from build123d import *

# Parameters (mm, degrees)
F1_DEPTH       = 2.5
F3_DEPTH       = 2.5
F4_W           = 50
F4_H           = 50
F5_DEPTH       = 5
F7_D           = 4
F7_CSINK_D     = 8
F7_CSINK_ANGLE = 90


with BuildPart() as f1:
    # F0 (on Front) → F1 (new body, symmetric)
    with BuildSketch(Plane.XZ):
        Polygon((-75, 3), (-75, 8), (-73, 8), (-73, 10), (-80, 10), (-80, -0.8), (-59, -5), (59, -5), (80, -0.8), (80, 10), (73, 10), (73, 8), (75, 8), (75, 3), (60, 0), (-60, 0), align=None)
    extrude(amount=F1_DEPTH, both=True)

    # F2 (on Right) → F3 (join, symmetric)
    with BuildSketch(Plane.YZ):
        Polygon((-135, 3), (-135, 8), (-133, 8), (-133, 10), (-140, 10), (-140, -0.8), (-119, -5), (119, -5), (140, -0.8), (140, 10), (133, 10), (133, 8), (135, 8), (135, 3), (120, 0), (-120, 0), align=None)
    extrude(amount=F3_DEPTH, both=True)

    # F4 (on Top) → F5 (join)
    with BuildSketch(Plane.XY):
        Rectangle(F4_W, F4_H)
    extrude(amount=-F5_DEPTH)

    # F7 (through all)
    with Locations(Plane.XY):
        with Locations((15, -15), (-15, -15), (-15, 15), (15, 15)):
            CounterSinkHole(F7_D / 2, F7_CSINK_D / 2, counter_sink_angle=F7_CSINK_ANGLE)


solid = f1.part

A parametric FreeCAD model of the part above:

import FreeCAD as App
import Part
import Sketcher
from FreeCAD import Vector
Q = App.Units.Quantity

doc = App.newDocument("Part")
body = doc.addObject("PartDesign::Body", "Body")

sketch1 = body.newObject("Sketcher::SketchObject", "Sketch")
sketch1.AttachmentSupport = (doc.getObject("XZ_Plane"), [""])
sketch1.MapMode = "FlatFace"
sketch1.addGeometry(Part.LineSegment(Vector(-75, 3, 0), Vector(-75, 8, 0)), False)
sketch1.addGeometry(Part.LineSegment(Vector(-75, 8, 0), Vector(-73, 8, 0)), False)
sketch1.addGeometry(Part.LineSegment(Vector(-73, 8, 0), Vector(-73, 10, 0)), False)
sketch1.addGeometry(Part.LineSegment(Vector(-73, 10, 0), Vector(-80, 10, 0)), False)
sketch1.addGeometry(Part.LineSegment(Vector(-80, 10, 0), Vector(-80, -0.8, 0)), False)
sketch1.addGeometry(Part.LineSegment(Vector(-80, -0.8, 0), Vector(-59, -5, 0)), False)
sketch1.addGeometry(Part.LineSegment(Vector(-59, -5, 0), Vector(59, -5, 0)), False)
sketch1.addGeometry(Part.LineSegment(Vector(59, -5, 0), Vector(80, -0.8, 0)), False)
sketch1.addGeometry(Part.LineSegment(Vector(80, -0.8, 0), Vector(80, 10, 0)), False)
sketch1.addGeometry(Part.LineSegment(Vector(80, 10, 0), Vector(73, 10, 0)), False)
sketch1.addGeometry(Part.LineSegment(Vector(73, 10, 0), Vector(73, 8, 0)), False)
sketch1.addGeometry(Part.LineSegment(Vector(73, 8, 0), Vector(75, 8, 0)), False)
sketch1.addGeometry(Part.LineSegment(Vector(75, 8, 0), Vector(75, 3, 0)), False)
sketch1.addGeometry(Part.LineSegment(Vector(75, 3, 0), Vector(60, 0, 0)), False)
sketch1.addGeometry(Part.LineSegment(Vector(60, 0, 0), Vector(-60, 0, 0)), False)
sketch1.addGeometry(Part.LineSegment(Vector(-60, 0, 0), Vector(-75, 3, 0)), False)
sketch1.addConstraint(Sketcher.Constraint("Coincident", 0, 2, 1, 1))
sketch1.addConstraint(Sketcher.Constraint("Coincident", 1, 2, 2, 1))
sketch1.addConstraint(Sketcher.Constraint("Coincident", 2, 2, 3, 1))
sketch1.addConstraint(Sketcher.Constraint("Coincident", 3, 2, 4, 1))
sketch1.addConstraint(Sketcher.Constraint("Coincident", 4, 2, 5, 1))
sketch1.addConstraint(Sketcher.Constraint("Coincident", 5, 2, 6, 1))
sketch1.addConstraint(Sketcher.Constraint("Coincident", 6, 2, 7, 1))
sketch1.addConstraint(Sketcher.Constraint("Coincident", 7, 2, 8, 1))
sketch1.addConstraint(Sketcher.Constraint("Coincident", 8, 2, 9, 1))
sketch1.addConstraint(Sketcher.Constraint("Coincident", 9, 2, 10, 1))
sketch1.addConstraint(Sketcher.Constraint("Coincident", 10, 2, 11, 1))
sketch1.addConstraint(Sketcher.Constraint("Coincident", 11, 2, 12, 1))
sketch1.addConstraint(Sketcher.Constraint("Coincident", 12, 2, 13, 1))
sketch1.addConstraint(Sketcher.Constraint("Coincident", 13, 2, 14, 1))
sketch1.addConstraint(Sketcher.Constraint("Coincident", 14, 2, 15, 1))
sketch1.addConstraint(Sketcher.Constraint("Coincident", 15, 2, 0, 1))
sketch1.addConstraint(Sketcher.Constraint("Vertical", 0))
sketch1.addConstraint(Sketcher.Constraint("Horizontal", 1))
sketch1.addConstraint(Sketcher.Constraint("Vertical", 2))
sketch1.addConstraint(Sketcher.Constraint("Horizontal", 3))
sketch1.addConstraint(Sketcher.Constraint("Vertical", 4))
sketch1.addConstraint(Sketcher.Constraint("Horizontal", 6))
sketch1.addConstraint(Sketcher.Constraint("Vertical", 8))
sketch1.addConstraint(Sketcher.Constraint("Horizontal", 9))
sketch1.addConstraint(Sketcher.Constraint("Vertical", 10))
sketch1.addConstraint(Sketcher.Constraint("Horizontal", 11))
sketch1.addConstraint(Sketcher.Constraint("Vertical", 12))
sketch1.addConstraint(Sketcher.Constraint("Horizontal", 14))
sketch1.addConstraint(Sketcher.Constraint("Symmetric", 13, 2, 14, 2, -1, 1))
sketch1.addConstraint(Sketcher.Constraint("Symmetric", 4, 2, 7, 2, -2))
sketch1.addConstraint(Sketcher.Constraint("Symmetric", 2, 2, 9, 2, -2))
sketch1.addConstraint(Sketcher.Constraint("Symmetric", 0, 2, 11, 2, -2))
sketch1.addConstraint(Sketcher.Constraint("Parallel", 7, 13))
sketch1.addConstraint(Sketcher.Constraint("Parallel", 5, 15))
sketch1.addConstraint(Sketcher.Constraint("Horizontal", 12, 2, 15, 2))
sketch1.addConstraint(Sketcher.Constraint("Equal", 11, 2))
sketch1.addConstraint(Sketcher.Constraint("DistanceX", 1, 1, 1, 2, Q("2 mm")))
sketch1.addConstraint(Sketcher.Constraint("DistanceX", 3, 2, 3, 1, Q("7 mm")))
sketch1.addConstraint(Sketcher.Constraint("DistanceX", 6, 1, 6, 2, Q("118 mm")))
sketch1.addConstraint(Sketcher.Constraint("DistanceX", 14, 2, 14, 1, Q("120 mm")))
sketch1.addConstraint(Sketcher.Constraint("DistanceY", 0, 1, 0, 2, Q("5 mm")))
sketch1.addConstraint(Sketcher.Constraint("DistanceY", 4, 2, 4, 1, Q("10.8 mm")))
sketch1.addConstraint(Sketcher.Constraint("DistanceX", 0, 2, -1, 1, Q("75 mm")))
sketch1.addConstraint(Sketcher.Constraint("DistanceY", -1, 1, 0, 2, Q("8 mm")))
pad1 = body.newObject("PartDesign::Pad", "Pad")
pad1.Profile = sketch1
pad1.Length = 5
pad1.Midplane = True

sketch2 = body.newObject("Sketcher::SketchObject", "Sketch001")
sketch2.AttachmentSupport = (doc.getObject("YZ_Plane"), [""])
sketch2.MapMode = "FlatFace"
sketch2.addGeometry(Part.LineSegment(Vector(-135, 3, 0), Vector(-135, 8, 0)), False)
sketch2.addGeometry(Part.LineSegment(Vector(-135, 8, 0), Vector(-133, 8, 0)), False)
sketch2.addGeometry(Part.LineSegment(Vector(-133, 8, 0), Vector(-133, 10, 0)), False)
sketch2.addGeometry(Part.LineSegment(Vector(-133, 10, 0), Vector(-140, 10, 0)), False)
sketch2.addGeometry(Part.LineSegment(Vector(-140, 10, 0), Vector(-140, -0.8, 0)), False)
sketch2.addGeometry(Part.LineSegment(Vector(-140, -0.8, 0), Vector(-119, -5, 0)), False)
sketch2.addGeometry(Part.LineSegment(Vector(-119, -5, 0), Vector(119, -5, 0)), False)
sketch2.addGeometry(Part.LineSegment(Vector(119, -5, 0), Vector(140, -0.8, 0)), False)
sketch2.addGeometry(Part.LineSegment(Vector(140, -0.8, 0), Vector(140, 10, 0)), False)
sketch2.addGeometry(Part.LineSegment(Vector(140, 10, 0), Vector(133, 10, 0)), False)
sketch2.addGeometry(Part.LineSegment(Vector(133, 10, 0), Vector(133, 8, 0)), False)
sketch2.addGeometry(Part.LineSegment(Vector(133, 8, 0), Vector(135, 8, 0)), False)
sketch2.addGeometry(Part.LineSegment(Vector(135, 8, 0), Vector(135, 3, 0)), False)
sketch2.addGeometry(Part.LineSegment(Vector(135, 3, 0), Vector(120, 0, 0)), False)
sketch2.addGeometry(Part.LineSegment(Vector(120, 0, 0), Vector(-120, 0, 0)), False)
sketch2.addGeometry(Part.LineSegment(Vector(-120, 0, 0), Vector(-135, 3, 0)), False)
sketch2.addConstraint(Sketcher.Constraint("Coincident", 0, 2, 1, 1))
sketch2.addConstraint(Sketcher.Constraint("Coincident", 1, 2, 2, 1))
sketch2.addConstraint(Sketcher.Constraint("Coincident", 2, 2, 3, 1))
sketch2.addConstraint(Sketcher.Constraint("Coincident", 3, 2, 4, 1))
sketch2.addConstraint(Sketcher.Constraint("Coincident", 4, 2, 5, 1))
sketch2.addConstraint(Sketcher.Constraint("Coincident", 5, 2, 6, 1))
sketch2.addConstraint(Sketcher.Constraint("Coincident", 6, 2, 7, 1))
sketch2.addConstraint(Sketcher.Constraint("Coincident", 7, 2, 8, 1))
sketch2.addConstraint(Sketcher.Constraint("Coincident", 8, 2, 9, 1))
sketch2.addConstraint(Sketcher.Constraint("Coincident", 9, 2, 10, 1))
sketch2.addConstraint(Sketcher.Constraint("Coincident", 10, 2, 11, 1))
sketch2.addConstraint(Sketcher.Constraint("Coincident", 11, 2, 12, 1))
sketch2.addConstraint(Sketcher.Constraint("Coincident", 12, 2, 13, 1))
sketch2.addConstraint(Sketcher.Constraint("Coincident", 13, 2, 14, 1))
sketch2.addConstraint(Sketcher.Constraint("Coincident", 14, 2, 15, 1))
sketch2.addConstraint(Sketcher.Constraint("Coincident", 15, 2, 0, 1))
sketch2.addConstraint(Sketcher.Constraint("Vertical", 0))
sketch2.addConstraint(Sketcher.Constraint("Horizontal", 1))
sketch2.addConstraint(Sketcher.Constraint("Vertical", 2))
sketch2.addConstraint(Sketcher.Constraint("Horizontal", 3))
sketch2.addConstraint(Sketcher.Constraint("Vertical", 4))
sketch2.addConstraint(Sketcher.Constraint("Horizontal", 6))
sketch2.addConstraint(Sketcher.Constraint("Vertical", 8))
sketch2.addConstraint(Sketcher.Constraint("Horizontal", 9))
sketch2.addConstraint(Sketcher.Constraint("Vertical", 10))
sketch2.addConstraint(Sketcher.Constraint("Horizontal", 11))
sketch2.addConstraint(Sketcher.Constraint("Vertical", 12))
sketch2.addConstraint(Sketcher.Constraint("Horizontal", 14))
sketch2.addConstraint(Sketcher.Constraint("Symmetric", 13, 2, 14, 2, -1, 1))
sketch2.addConstraint(Sketcher.Constraint("Symmetric", 4, 2, 7, 2, -2))
sketch2.addConstraint(Sketcher.Constraint("Symmetric", 2, 2, 9, 2, -2))
sketch2.addConstraint(Sketcher.Constraint("Symmetric", 0, 2, 11, 2, -2))
sketch2.addConstraint(Sketcher.Constraint("Parallel", 7, 13))
sketch2.addConstraint(Sketcher.Constraint("Parallel", 5, 15))
sketch2.addConstraint(Sketcher.Constraint("Horizontal", 12, 2, 15, 2))
sketch2.addConstraint(Sketcher.Constraint("Equal", 11, 2))
sketch2.addConstraint(Sketcher.Constraint("DistanceX", 1, 1, 1, 2, Q("2 mm")))
sketch2.addConstraint(Sketcher.Constraint("DistanceX", 3, 2, 3, 1, Q("7 mm")))
sketch2.addConstraint(Sketcher.Constraint("DistanceX", 6, 1, 6, 2, Q("238 mm")))
sketch2.addConstraint(Sketcher.Constraint("DistanceX", 14, 2, 14, 1, Q("240 mm")))
sketch2.addConstraint(Sketcher.Constraint("DistanceY", 0, 1, 0, 2, Q("5 mm")))
sketch2.addConstraint(Sketcher.Constraint("DistanceY", 4, 2, 4, 1, Q("10.8 mm")))
sketch2.addConstraint(Sketcher.Constraint("DistanceX", 0, 2, -1, 1, Q("135 mm")))
sketch2.addConstraint(Sketcher.Constraint("DistanceY", -1, 1, 0, 2, Q("8 mm")))
pad2 = body.newObject("PartDesign::Pad", "Pad001")
pad2.Profile = sketch2
pad2.Length = 5
pad2.Midplane = True

sketch3 = body.newObject("Sketcher::SketchObject", "Sketch002")
sketch3.AttachmentSupport = (doc.getObject("XY_Plane"), [""])
sketch3.MapMode = "FlatFace"
sketch3.addGeometry(Part.LineSegment(Vector(-25, 25, 0), Vector(-25, -25, 0)), False)
sketch3.addGeometry(Part.LineSegment(Vector(-25, -25, 0), Vector(25, -25, 0)), False)
sketch3.addGeometry(Part.LineSegment(Vector(25, -25, 0), Vector(25, 25, 0)), False)
sketch3.addGeometry(Part.LineSegment(Vector(25, 25, 0), Vector(-25, 25, 0)), False)
sketch3.addConstraint(Sketcher.Constraint("Coincident", 0, 2, 1, 1))
sketch3.addConstraint(Sketcher.Constraint("Coincident", 1, 2, 2, 1))
sketch3.addConstraint(Sketcher.Constraint("Coincident", 2, 2, 3, 1))
sketch3.addConstraint(Sketcher.Constraint("Coincident", 3, 2, 0, 1))
sketch3.addConstraint(Sketcher.Constraint("Vertical", 0))
sketch3.addConstraint(Sketcher.Constraint("Horizontal", 1))
sketch3.addConstraint(Sketcher.Constraint("Vertical", 2))
sketch3.addConstraint(Sketcher.Constraint("Horizontal", 3))
sketch3.addConstraint(Sketcher.Constraint("Symmetric", 0, 2, 2, 2, -1, 1))
sketch3.addConstraint(Sketcher.Constraint("Equal", 3, 0))
sketch3.addConstraint(Sketcher.Constraint("DistanceX", 1, 1, 1, 2, Q("50 mm")))
pad3 = body.newObject("PartDesign::Pad", "Pad002")
pad3.Profile = sketch3
pad3.Length = 5
pad3.Reversed = True

sketch4 = body.newObject("Sketcher::SketchObject", "Sketch003")
sketch4.AttachmentSupport = (doc.getObject("XY_Plane"), [""])
sketch4.MapMode = "FlatFace"
sketch4.addGeometry(Part.Circle(Vector(15, -15, 0), Vector(0, 0, 1), 2), False)
sketch4.addGeometry(Part.Circle(Vector(-15, -15, 0), Vector(0, 0, 1), 2), False)
sketch4.addGeometry(Part.Circle(Vector(-15, 15, 0), Vector(0, 0, 1), 2), False)
sketch4.addGeometry(Part.Circle(Vector(15, 15, 0), Vector(0, 0, 1), 2), False)
sketch4.addConstraint(Sketcher.Constraint("Equal", 0, 1))
sketch4.addConstraint(Sketcher.Constraint("Equal", 1, 2))
sketch4.addConstraint(Sketcher.Constraint("Equal", 2, 3))
sketch4.addConstraint(Sketcher.Constraint("Symmetric", 0, 3, 2, 3, -1, 1))
sketch4.addConstraint(Sketcher.Constraint("Symmetric", 1, 3, 3, 3, -1, 1))
sketch4.addConstraint(Sketcher.Constraint("Symmetric", 0, 3, 1, 3, -2))
sketch4.addConstraint(Sketcher.Constraint("Diameter", 0, Q("4 mm")))
sketch4.addConstraint(Sketcher.Constraint("DistanceX", -1, 1, 0, 3, Q("15 mm")))
sketch4.addConstraint(Sketcher.Constraint("DistanceY", 0, 3, -1, 1, Q("15 mm")))
doc.recompute()
hole = body.newObject("PartDesign::Hole", "Hole")
hole.Profile = sketch4
hole.ThreadType = "None"
hole.Diameter = 4
hole.DepthType = "ThroughAll"
hole.HoleCutType = "Countersink"
hole.HoleCutDiameter = 8
hole.HoleCutCountersinkAngle = 90

doc.recompute()
